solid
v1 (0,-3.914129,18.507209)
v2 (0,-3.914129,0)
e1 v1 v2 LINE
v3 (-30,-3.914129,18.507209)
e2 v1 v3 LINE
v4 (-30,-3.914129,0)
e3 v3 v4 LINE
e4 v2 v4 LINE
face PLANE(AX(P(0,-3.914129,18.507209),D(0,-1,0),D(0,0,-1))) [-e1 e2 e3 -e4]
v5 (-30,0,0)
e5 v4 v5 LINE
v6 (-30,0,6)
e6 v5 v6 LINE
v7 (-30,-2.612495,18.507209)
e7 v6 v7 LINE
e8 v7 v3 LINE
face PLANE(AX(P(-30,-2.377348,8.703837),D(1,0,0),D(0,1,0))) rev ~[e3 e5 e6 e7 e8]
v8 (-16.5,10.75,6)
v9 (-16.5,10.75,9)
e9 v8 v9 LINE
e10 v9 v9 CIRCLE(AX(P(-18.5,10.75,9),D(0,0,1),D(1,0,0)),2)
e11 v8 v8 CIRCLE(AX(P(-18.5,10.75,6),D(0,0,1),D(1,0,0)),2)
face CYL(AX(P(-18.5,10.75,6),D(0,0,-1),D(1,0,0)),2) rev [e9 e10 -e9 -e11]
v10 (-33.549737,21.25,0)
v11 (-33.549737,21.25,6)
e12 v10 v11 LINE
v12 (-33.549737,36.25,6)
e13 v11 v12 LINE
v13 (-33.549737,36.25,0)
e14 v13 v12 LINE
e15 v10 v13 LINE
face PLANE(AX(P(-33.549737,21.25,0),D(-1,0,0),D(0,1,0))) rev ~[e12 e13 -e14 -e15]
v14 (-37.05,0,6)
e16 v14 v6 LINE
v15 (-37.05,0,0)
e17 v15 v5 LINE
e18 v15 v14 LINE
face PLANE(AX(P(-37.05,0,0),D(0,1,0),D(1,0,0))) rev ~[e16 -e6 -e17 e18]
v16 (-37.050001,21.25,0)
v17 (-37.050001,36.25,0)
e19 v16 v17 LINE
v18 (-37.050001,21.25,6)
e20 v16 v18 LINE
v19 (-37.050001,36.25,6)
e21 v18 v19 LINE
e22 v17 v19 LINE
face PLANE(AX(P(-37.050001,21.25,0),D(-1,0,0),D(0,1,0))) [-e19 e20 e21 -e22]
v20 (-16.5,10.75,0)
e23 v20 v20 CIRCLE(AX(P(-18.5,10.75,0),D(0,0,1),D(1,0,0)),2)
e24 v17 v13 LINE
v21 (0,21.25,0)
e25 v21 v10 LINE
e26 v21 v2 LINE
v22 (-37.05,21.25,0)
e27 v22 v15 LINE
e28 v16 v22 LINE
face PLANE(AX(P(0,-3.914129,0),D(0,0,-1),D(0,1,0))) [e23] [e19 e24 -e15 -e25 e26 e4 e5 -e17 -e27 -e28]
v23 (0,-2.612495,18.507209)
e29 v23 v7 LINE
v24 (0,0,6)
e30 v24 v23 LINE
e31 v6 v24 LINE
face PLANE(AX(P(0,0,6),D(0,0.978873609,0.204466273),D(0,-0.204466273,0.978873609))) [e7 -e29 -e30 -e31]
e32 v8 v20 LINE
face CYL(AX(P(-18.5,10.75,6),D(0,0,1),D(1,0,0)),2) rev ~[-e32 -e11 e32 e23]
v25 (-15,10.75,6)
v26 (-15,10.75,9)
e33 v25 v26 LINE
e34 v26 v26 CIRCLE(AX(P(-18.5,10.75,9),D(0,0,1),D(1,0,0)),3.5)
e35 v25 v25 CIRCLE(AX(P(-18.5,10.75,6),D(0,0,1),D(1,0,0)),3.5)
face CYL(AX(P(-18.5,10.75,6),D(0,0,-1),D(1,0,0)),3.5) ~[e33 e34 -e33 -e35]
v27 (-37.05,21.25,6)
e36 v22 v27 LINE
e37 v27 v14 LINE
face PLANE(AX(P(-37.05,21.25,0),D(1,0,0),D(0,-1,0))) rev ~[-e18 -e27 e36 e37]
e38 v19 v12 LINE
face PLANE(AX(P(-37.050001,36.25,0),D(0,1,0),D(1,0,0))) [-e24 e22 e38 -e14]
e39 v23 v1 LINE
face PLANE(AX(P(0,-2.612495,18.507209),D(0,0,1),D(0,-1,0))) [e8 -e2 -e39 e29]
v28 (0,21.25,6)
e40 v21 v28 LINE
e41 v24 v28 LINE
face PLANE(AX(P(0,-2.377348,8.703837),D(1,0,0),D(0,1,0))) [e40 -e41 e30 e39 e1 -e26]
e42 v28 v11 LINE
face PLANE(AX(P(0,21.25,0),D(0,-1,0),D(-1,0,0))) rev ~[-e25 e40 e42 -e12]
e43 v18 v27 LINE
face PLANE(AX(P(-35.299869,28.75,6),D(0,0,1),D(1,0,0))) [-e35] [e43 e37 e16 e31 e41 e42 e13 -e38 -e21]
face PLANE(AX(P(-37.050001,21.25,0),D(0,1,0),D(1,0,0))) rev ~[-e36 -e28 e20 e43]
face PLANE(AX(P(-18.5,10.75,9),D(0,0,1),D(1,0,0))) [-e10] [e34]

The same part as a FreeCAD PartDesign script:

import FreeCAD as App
import Part
import Sketcher

V = App.Vector
Q = App.Units.Quantity

doc = App.newDocument("Part")
body = doc.addObject("PartDesign::Body", "Body")

# Sketch on XY plane
sketch1 = body.newObject("Sketcher::SketchObject", "Sketch")
sketch1.AttachmentSupport = (doc.getObject("XY_Plane"), [""])
sketch1.MapMode = "FlatFace"
sketch1.addGeometry([
    Part.LineSegment(V(-37.050001, 36.25, 0), V(-37.050001, 21.25, 0)),  # 0
    Part.LineSegment(V(-37.05, 21.25, 0), V(-37.050001, 21.25, 0)),  # 1
    Part.LineSegment(V(-37.05, 21.25, 0), V(-37.05, 0, 0)),  # 2
    Part.LineSegment(V(-37.05, 0, 0), V(0, 0, 0)),  # 3
    Part.LineSegment(V(0, 0, 0), V(0, 21.25, 0)),  # 4
    Part.LineSegment(V(0, 21.25, 0), V(-33.549737, 21.25, 0)),  # 5
    Part.LineSegment(V(-33.549737, 21.25, 0), V(-33.549737, 36.25, 0)),  # 6
    Part.LineSegment(V(-33.549737, 36.25, 0), V(-37.050001, 36.25, 0)),  # 7
], False)
sketch1.addConstraint([
    Sketcher.Constraint("Coincident", 0, 2, 1, 1),
    Sketcher.Constraint("Coincident", 1, 2, 2, 1),
    Sketcher.Constraint("Coincident", 2, 2, 3, 1),
    Sketcher.Constraint("Coincident", 3, 2, 4, 1),
    Sketcher.Constraint("Coincident", 4, 2, 5, 1),
    Sketcher.Constraint("Coincident", 5, 2, 6, 1),
    Sketcher.Constraint("Coincident", 6, 2, 7, 1),
    Sketcher.Constraint("Coincident", 7, 2, 0, 1),
    Sketcher.Constraint("Vertical", 0),
    Sketcher.Constraint("Horizontal", 1),
    Sketcher.Constraint("Vertical", 2),
    Sketcher.Constraint("Horizontal", 3),
    Sketcher.Constraint("Vertical", 4),
    Sketcher.Constraint("Horizontal", 5),
    Sketcher.Constraint("Vertical", 6),
    Sketcher.Constraint("Horizontal", 7),
    Sketcher.Constraint("Coincident", 3, 2, -1, 1),
    Sketcher.Constraint("DistanceY", 0, 2, 0, 1, Q("15 mm")),
    Sketcher.Constraint("DistanceY", 6, 1, 6, 2, Q("15 mm")),
    Sketcher.Constraint("DistanceX", 3, 1, 3, 2, Q("37.05 mm")),
    Sketcher.Constraint("DistanceY", 2, 2, 2, 1, Q("21.25 mm")),
    Sketcher.Constraint("DistanceX", 0, 2, -1, 1, Q("37.050001 mm")),
    Sketcher.Constraint("DistanceX", 5, 2, 5, 1, Q("33.549737 mm")),
])
pad1 = body.newObject("PartDesign::Pad", "Pad")
pad1.Profile = sketch1
pad1.Length = 6

# Sketch on XY plane
sketch2 = body.newObject("Sketcher::SketchObject", "Sketch001")
sketch2.AttachmentSupport = (doc.getObject("XY_Plane"), [""])
sketch2.MapMode = "FlatFace"
sketch2.AttachmentOffset = App.Placement(V(0, 0, 6), App.Rotation())
sketch2.addGeometry([
    Part.Circle(V(-18.5, 10.8, 0), V(0, 0, 1), 3.5),
    Part.Circle(V(-18.5, 10.8, 0), V(0, 0, 1), 2),
], False)
sketch2.addConstraint([
    Sketcher.Constraint("Coincident", 1, 3, 0, 3),
    Sketcher.Constraint("Diameter", 0, Q("7 mm")),
    Sketcher.Constraint("Diameter", 1, Q("4 mm")),
    Sketcher.Constraint("DistanceX", 0, 3, -1, 1, Q("18.5 mm")),
    Sketcher.Constraint("DistanceY", -1, 1, 0, 3, Q("10.75 mm")),
])
pad2 = body.newObject("PartDesign::Pad", "Pad001")
pad2.Profile = sketch2
pad2.Length = 3

# Sketch on XY plane
sketch3 = body.newObject("Sketcher::SketchObject", "Sketch002")
sketch3.AttachmentSupport = (doc.getObject("XY_Plane"), [""])
sketch3.MapMode = "FlatFace"
sketch3.AttachmentOffset = App.Placement(V(0, 0, 6), App.Rotation())
sketch3.addGeometry(Part.Circle(V(-18.5, 10.8, 0), V(0, 0, 1), 2), False)
sketch3.addConstraint([
    Sketcher.Constraint("Diameter", 0, Q("4 mm")),
    Sketcher.Constraint("DistanceX", 0, 3, -1, 1, Q("18.5 mm")),
    Sketcher.Constraint("DistanceY", -1, 1, 0, 3, Q("10.75 mm")),
])
pocket1 = body.newObject("PartDesign::Pocket", "Pocket")
pocket1.Profile = sketch3
pocket1.Length = 25

# Sketch on YZ plane
sketch4 = body.newObject("Sketcher::SketchObject", "Sketch003")
sketch4.AttachmentSupport = (doc.getObject("YZ_Plane"), [""])
sketch4.MapMode = "FlatFace"
sketch4.addGeometry([
    Part.LineSegment(V(-3.9, 0, 0), V(0, 0, 0)),  # 0
    Part.LineSegment(V(0, 0, 0), V(0, 6, 0)),  # 1
    Part.LineSegment(V(0, 6, 0), V(-2.6, 18.5, 0)),  # 2
    Part.LineSegment(V(-2.6, 18.5, 0), V(-3.9, 18.5, 0)),  # 3
    Part.LineSegment(V(-3.9, 18.5, 0), V(-3.9, 0, 0)),  # 4
], False)
sketch4.addConstraint([
    Sketcher.Constraint("Coincident", 0, 2, 1, 1),
    Sketcher.Constraint("Coincident", 1, 2, 2, 1),
    Sketcher.Constraint("Coincident", 2, 2, 3, 1),
    Sketcher.Constraint("Coincident", 3, 2, 4, 1),
    Sketcher.Constraint("Coincident", 4, 2, 0, 1),
    Sketcher.Constraint("Horizontal", 0),
    Sketcher.Constraint("Vertical", 1),
    Sketcher.Constraint("Horizontal", 3),
    Sketcher.Constraint("Vertical", 4),
    Sketcher.Constraint("Coincident", 0, 2, -1, 1),
    Sketcher.Constraint("DistanceY", 1, 1, 1, 2, Q("6 mm")),
    Sketcher.Constraint("DistanceX", 0, 1, 0, 2, Q("3.914129 mm")),
    Sketcher.Constraint("DistanceY", 4, 2, 4, 1, Q("18.507209 mm")),
    Sketcher.Constraint("DistanceX", 3, 2, 3, 1, Q("1.301634 mm")),
])
pad3 = body.newObject("PartDesign::Pad", "Pad002")
pad3.Profile = sketch4
pad3.Length = 30
pad3.Reversed = True

doc.recompute()
